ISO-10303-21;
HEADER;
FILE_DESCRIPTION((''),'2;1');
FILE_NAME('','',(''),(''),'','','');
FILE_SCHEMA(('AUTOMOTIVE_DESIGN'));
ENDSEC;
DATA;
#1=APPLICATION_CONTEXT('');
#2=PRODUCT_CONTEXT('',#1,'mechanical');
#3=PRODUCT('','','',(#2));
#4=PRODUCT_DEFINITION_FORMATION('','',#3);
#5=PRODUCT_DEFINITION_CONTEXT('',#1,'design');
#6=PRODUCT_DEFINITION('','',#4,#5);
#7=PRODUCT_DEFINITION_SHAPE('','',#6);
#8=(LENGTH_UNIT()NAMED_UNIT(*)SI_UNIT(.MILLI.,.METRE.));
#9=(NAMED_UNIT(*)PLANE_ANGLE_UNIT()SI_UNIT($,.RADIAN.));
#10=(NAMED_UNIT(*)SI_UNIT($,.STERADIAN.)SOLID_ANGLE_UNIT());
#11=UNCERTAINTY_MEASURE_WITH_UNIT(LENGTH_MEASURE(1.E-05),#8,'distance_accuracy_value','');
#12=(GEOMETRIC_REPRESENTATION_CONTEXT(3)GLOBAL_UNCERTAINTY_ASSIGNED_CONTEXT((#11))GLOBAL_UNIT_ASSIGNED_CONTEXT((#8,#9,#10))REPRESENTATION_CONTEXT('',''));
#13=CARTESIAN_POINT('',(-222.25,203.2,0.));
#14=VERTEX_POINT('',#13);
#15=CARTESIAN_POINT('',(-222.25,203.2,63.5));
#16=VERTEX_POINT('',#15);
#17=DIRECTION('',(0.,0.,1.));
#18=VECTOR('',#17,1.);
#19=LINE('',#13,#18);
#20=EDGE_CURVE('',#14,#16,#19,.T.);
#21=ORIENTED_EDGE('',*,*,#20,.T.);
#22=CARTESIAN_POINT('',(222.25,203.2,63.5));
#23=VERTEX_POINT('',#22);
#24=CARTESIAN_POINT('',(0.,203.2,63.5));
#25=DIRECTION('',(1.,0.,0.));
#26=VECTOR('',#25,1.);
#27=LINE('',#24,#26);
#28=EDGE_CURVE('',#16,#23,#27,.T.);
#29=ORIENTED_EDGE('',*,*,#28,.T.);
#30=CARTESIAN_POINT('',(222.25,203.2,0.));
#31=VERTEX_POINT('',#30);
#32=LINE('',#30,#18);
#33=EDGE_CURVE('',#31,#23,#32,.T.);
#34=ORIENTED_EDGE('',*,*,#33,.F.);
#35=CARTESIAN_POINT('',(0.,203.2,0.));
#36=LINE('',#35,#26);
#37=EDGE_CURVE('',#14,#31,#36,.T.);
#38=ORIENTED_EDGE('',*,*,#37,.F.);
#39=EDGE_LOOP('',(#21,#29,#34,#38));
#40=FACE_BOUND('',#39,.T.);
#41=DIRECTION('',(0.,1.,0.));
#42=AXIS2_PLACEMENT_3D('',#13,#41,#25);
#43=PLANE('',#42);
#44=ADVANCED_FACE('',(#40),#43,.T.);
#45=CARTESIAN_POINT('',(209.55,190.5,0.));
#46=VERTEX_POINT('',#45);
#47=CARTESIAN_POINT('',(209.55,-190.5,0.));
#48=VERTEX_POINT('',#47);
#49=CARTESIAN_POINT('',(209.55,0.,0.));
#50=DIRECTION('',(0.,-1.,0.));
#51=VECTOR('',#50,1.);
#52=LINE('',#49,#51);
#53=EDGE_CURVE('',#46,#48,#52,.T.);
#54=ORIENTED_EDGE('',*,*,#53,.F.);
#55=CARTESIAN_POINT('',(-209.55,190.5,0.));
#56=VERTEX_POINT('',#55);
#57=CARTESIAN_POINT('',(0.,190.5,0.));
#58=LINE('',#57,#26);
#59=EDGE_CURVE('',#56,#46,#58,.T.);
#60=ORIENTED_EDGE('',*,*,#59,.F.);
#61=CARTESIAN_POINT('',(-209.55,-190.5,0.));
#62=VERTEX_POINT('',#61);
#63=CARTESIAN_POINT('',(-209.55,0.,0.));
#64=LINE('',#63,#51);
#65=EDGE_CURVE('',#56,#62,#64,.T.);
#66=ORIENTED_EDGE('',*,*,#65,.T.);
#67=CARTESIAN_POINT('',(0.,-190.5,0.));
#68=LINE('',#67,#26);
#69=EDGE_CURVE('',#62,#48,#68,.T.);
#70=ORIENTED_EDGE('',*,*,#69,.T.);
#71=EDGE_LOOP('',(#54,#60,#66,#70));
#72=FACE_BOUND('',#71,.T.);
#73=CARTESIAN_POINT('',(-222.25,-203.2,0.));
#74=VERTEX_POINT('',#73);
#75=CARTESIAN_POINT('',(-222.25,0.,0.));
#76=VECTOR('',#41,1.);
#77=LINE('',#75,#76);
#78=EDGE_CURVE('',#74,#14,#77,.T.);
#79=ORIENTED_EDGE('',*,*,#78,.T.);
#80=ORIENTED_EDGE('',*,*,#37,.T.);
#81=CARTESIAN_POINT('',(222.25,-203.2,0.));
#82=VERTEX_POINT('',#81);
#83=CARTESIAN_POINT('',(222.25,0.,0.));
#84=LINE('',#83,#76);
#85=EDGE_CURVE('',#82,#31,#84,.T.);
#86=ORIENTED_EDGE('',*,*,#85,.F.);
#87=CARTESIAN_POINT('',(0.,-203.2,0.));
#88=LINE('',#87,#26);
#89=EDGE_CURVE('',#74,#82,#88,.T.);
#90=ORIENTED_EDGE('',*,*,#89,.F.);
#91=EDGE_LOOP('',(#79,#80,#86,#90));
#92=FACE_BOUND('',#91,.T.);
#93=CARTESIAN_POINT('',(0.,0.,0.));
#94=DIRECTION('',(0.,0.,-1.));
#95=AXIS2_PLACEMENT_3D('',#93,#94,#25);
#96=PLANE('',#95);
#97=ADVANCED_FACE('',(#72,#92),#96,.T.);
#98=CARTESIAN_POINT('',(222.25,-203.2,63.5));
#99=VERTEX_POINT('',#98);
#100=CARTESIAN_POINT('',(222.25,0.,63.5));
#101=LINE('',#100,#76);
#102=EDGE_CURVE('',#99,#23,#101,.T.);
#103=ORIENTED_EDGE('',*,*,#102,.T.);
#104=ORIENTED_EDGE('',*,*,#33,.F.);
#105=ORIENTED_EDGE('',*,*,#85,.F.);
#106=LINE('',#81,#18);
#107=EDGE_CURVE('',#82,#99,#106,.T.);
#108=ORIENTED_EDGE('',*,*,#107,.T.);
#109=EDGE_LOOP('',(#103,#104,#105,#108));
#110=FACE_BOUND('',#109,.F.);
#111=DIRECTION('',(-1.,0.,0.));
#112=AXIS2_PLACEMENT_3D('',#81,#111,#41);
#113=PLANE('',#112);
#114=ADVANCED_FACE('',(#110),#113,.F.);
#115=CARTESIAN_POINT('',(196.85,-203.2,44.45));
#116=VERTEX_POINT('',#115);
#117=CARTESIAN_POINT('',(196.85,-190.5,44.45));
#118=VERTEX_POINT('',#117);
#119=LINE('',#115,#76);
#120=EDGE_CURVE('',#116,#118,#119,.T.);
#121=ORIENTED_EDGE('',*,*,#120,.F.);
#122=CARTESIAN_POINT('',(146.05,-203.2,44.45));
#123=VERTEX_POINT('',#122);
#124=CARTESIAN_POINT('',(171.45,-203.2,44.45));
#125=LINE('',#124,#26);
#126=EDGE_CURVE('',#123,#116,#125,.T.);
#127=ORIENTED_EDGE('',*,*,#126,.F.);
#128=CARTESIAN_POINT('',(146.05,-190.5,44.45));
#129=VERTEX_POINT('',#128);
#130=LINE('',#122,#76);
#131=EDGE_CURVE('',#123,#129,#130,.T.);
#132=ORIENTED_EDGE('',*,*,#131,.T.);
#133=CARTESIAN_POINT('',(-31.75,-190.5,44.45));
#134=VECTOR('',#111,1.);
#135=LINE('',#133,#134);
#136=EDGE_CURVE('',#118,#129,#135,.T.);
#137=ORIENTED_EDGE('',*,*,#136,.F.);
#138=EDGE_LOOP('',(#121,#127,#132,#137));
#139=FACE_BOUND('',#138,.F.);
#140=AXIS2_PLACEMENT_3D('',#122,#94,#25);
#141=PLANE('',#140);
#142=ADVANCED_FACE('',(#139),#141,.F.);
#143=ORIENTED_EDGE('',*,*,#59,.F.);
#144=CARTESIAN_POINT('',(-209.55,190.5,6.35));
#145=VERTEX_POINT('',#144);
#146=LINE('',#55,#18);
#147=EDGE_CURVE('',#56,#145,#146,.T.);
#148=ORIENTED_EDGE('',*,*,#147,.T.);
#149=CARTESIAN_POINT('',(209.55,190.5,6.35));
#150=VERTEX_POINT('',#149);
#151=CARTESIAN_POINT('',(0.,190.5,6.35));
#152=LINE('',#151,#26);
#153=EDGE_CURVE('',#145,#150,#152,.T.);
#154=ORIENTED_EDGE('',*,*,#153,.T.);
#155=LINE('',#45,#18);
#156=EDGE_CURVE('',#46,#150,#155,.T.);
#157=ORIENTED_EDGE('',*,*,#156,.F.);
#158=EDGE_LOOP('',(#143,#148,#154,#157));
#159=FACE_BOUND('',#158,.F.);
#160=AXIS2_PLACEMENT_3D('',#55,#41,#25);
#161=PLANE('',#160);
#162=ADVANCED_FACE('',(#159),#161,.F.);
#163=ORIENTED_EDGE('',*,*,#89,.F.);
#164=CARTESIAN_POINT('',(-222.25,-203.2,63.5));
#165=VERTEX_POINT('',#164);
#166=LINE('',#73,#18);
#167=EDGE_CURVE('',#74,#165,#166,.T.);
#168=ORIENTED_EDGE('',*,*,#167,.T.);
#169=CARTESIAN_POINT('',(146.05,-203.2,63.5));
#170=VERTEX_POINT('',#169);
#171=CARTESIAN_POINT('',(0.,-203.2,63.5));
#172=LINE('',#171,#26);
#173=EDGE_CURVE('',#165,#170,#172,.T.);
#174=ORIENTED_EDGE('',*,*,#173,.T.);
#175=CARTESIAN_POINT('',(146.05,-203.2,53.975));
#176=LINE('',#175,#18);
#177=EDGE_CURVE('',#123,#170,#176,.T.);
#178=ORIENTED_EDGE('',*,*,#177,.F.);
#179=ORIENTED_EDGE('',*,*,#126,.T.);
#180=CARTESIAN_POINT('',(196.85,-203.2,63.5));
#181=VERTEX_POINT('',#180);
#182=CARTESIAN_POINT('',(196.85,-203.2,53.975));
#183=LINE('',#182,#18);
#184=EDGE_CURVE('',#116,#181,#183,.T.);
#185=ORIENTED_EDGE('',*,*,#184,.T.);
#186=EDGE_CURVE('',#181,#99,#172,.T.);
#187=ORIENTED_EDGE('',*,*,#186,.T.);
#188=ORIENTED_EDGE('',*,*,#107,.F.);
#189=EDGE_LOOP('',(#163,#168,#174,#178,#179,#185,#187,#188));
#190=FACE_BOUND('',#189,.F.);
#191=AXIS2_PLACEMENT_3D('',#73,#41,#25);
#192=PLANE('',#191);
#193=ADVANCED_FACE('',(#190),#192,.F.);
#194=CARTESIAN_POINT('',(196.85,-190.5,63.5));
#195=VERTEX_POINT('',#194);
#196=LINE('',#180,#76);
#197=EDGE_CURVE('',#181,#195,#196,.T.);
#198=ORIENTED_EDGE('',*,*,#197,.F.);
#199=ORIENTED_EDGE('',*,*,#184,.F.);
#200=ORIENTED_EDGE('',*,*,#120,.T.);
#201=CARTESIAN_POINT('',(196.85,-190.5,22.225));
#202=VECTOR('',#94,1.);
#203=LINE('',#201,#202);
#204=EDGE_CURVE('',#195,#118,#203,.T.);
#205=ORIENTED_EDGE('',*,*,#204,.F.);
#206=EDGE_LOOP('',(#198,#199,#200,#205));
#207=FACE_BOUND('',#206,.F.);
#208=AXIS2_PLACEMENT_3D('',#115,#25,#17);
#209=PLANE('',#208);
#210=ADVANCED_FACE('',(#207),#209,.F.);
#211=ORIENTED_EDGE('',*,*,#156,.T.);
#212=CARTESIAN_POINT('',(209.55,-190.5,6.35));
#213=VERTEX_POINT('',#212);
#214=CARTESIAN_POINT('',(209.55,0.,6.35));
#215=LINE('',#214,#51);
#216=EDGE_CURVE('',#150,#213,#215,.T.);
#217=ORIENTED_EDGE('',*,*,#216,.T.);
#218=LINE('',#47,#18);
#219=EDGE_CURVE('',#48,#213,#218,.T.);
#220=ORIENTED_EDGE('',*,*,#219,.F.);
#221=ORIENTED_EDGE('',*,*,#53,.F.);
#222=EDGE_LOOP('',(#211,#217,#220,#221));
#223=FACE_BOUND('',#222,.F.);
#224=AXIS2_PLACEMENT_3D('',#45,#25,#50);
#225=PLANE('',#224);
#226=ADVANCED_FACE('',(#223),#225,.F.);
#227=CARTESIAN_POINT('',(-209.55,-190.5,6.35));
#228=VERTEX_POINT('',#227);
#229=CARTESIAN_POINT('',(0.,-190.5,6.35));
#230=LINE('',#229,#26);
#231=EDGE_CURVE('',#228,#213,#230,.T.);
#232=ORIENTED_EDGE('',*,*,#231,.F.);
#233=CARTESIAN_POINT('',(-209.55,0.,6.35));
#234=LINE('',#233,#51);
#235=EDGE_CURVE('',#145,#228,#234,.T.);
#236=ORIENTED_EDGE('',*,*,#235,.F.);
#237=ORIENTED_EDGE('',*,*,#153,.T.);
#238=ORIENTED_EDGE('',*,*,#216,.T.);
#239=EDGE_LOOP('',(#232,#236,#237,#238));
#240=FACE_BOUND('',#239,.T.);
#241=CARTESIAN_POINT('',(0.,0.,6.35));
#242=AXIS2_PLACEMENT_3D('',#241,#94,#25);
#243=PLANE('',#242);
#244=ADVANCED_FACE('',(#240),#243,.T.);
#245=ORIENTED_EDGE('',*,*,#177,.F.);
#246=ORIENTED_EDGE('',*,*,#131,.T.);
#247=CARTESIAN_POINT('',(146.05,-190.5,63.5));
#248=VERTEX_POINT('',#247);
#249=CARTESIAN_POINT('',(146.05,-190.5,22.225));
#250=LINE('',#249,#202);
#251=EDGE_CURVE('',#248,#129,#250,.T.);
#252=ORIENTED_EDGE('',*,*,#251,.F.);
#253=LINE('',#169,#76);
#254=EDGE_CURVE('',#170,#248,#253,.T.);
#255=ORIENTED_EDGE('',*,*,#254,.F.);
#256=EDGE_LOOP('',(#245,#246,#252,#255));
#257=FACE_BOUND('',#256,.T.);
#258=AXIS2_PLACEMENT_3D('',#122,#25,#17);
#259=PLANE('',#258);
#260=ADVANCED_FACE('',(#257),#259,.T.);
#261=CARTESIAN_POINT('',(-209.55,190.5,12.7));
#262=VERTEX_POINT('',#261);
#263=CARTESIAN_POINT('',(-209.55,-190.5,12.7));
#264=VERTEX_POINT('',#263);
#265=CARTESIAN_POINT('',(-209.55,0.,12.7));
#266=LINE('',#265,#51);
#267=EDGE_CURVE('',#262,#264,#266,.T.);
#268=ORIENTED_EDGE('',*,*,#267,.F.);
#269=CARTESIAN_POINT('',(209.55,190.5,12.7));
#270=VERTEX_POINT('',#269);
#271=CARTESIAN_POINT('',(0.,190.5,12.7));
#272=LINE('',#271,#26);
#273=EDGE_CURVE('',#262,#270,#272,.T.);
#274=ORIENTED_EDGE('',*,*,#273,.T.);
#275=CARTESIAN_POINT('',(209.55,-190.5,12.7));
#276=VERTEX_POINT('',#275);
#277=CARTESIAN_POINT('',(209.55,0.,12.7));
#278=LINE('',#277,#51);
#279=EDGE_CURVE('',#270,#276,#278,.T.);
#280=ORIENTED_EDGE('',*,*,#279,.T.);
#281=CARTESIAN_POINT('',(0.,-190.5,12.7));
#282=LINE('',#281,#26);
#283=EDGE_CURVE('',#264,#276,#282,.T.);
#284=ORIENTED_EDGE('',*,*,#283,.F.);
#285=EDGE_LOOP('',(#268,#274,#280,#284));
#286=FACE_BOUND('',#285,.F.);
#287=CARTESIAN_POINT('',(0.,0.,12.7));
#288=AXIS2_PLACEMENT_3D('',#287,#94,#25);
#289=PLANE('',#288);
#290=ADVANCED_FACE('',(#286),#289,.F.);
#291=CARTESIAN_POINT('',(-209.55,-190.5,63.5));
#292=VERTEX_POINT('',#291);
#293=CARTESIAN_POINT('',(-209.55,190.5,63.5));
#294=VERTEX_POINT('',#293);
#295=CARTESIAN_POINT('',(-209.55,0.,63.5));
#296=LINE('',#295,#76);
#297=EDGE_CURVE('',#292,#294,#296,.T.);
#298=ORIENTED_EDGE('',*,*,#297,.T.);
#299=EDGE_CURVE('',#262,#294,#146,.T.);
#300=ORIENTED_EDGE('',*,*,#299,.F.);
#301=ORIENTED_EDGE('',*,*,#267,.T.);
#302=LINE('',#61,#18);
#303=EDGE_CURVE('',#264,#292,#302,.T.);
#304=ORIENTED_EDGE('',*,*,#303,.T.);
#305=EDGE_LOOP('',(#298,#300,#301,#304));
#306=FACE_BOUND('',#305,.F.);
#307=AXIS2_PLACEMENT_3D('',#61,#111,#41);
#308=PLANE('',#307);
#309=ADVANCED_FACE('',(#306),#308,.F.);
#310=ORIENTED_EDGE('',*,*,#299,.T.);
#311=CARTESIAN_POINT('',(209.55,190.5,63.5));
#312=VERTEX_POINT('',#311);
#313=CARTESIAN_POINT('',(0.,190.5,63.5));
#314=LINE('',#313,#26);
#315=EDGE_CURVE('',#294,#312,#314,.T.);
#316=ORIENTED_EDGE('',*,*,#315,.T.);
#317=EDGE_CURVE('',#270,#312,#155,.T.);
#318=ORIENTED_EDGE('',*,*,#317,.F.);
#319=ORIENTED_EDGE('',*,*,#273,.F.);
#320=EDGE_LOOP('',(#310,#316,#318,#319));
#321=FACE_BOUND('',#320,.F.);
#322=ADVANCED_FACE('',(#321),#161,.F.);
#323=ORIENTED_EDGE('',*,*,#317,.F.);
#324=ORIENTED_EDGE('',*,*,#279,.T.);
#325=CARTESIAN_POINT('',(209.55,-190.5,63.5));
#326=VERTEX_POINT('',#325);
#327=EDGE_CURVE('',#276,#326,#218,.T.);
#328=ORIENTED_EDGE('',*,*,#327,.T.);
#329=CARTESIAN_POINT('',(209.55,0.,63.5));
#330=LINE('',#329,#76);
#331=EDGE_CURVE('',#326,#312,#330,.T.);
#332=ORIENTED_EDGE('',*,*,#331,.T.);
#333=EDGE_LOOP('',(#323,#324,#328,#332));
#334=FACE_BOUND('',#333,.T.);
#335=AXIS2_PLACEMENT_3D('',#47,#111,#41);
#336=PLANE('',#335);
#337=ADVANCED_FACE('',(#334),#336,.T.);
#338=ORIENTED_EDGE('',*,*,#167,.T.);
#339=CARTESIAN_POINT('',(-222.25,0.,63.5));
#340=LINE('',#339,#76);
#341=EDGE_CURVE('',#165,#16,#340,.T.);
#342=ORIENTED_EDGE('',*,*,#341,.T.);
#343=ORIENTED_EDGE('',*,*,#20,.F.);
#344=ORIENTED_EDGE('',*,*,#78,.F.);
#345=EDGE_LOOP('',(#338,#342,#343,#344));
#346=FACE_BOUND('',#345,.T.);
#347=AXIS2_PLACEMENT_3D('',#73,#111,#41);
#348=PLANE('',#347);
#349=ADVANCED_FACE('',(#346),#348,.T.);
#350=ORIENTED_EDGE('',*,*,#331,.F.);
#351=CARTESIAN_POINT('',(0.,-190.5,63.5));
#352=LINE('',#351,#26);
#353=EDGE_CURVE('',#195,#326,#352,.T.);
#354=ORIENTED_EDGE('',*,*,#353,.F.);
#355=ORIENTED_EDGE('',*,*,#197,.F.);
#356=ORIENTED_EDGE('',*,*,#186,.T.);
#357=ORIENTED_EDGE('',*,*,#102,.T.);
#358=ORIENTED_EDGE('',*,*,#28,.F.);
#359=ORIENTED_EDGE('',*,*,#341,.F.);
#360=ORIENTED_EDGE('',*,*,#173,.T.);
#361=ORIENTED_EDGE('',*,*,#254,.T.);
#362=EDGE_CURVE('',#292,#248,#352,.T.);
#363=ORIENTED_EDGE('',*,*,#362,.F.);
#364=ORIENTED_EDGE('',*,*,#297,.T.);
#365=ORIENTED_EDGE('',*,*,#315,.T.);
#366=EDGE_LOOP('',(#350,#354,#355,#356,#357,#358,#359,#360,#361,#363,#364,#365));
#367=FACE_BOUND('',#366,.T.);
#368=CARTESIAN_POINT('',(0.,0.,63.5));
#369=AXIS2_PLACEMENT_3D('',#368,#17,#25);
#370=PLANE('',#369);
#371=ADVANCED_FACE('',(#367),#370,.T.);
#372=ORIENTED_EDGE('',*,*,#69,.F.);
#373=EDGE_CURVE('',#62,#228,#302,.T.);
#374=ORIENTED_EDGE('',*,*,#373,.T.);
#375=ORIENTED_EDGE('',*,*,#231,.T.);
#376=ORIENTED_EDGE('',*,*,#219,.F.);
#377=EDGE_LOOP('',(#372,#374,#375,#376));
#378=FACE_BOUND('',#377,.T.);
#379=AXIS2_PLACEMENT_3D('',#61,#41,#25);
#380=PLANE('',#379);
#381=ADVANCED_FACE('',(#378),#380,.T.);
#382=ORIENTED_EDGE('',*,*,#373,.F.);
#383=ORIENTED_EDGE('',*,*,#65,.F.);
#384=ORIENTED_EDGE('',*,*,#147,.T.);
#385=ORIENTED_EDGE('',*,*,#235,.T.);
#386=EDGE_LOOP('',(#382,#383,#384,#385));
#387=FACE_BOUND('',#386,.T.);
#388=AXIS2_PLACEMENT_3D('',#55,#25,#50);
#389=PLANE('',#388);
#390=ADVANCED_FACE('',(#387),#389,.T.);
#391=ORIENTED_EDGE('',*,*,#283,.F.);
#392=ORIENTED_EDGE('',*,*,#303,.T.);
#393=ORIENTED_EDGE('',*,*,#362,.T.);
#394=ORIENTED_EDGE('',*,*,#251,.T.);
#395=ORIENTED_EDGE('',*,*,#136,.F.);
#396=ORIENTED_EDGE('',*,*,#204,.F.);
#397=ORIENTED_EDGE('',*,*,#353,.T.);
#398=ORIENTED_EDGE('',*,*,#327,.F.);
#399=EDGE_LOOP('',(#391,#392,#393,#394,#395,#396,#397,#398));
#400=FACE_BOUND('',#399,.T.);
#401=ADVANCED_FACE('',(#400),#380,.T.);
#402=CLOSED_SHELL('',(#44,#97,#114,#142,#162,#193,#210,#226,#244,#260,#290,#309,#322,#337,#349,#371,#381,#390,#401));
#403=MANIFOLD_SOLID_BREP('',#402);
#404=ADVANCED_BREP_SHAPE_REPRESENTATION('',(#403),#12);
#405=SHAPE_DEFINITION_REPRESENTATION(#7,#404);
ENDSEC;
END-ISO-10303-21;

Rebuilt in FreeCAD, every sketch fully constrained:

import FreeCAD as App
import Part
import Sketcher
Q = App.Units.Quantity

doc = App.newDocument("Part")
body = doc.addObject("PartDesign::Body", "Body")

# Sketch on XY plane
sketch1 = body.newObject("Sketcher::SketchObject", "Sketch")
sketch1.AttachmentSupport = (doc.getObject("XY_Plane"), [""])
sketch1.MapMode = "FlatFace"
sketch1.addGeometry([
    Part.LineSegment(App.Vector(-222, 203, 0), App.Vector(-222, -203, 0)),  # 0
    Part.LineSegment(App.Vector(-222, -203, 0), App.Vector(222, -203, 0)),  # 1
    Part.LineSegment(App.Vector(222, -203, 0), App.Vector(222, 203, 0)),  # 2
    Part.LineSegment(App.Vector(222, 203, 0), App.Vector(-222, 203, 0)),  # 3
    Part.LineSegment(App.Vector(210, -190, 0), App.Vector(-210, -190, 0)),  # 4
    Part.LineSegment(App.Vector(-210, -190, 0), App.Vector(-210, 190, 0)),  # 5
    Part.LineSegment(App.Vector(-210, 190, 0), App.Vector(210, 190, 0)),  # 6
    Part.LineSegment(App.Vector(210, 190, 0), App.Vector(210, -190, 0)),  # 7
], False)
sketch1.addConstraint([
    Sketcher.Constraint("Coincident", 0, 2, 1, 1),
    Sketcher.Constraint("Coincident", 1, 2, 2, 1),
    Sketcher.Constraint("Coincident", 2, 2, 3, 1),
    Sketcher.Constraint("Coincident", 3, 2, 0, 1),
    Sketcher.Constraint("Coincident", 4, 2, 5, 1),
    Sketcher.Constraint("Coincident", 5, 2, 6, 1),
    Sketcher.Constraint("Coincident", 6, 2, 7, 1),
    Sketcher.Constraint("Coincident", 7, 2, 4, 1),
    Sketcher.Constraint("Vertical", 0),
    Sketcher.Constraint("Horizontal", 1),
    Sketcher.Constraint("Vertical", 2),
    Sketcher.Constraint("Horizontal", 3),
    Sketcher.Constraint("Horizontal", 4),
    Sketcher.Constraint("Vertical", 5),
    Sketcher.Constraint("Horizontal", 6),
    Sketcher.Constraint("Vertical", 7),
    Sketcher.Constraint("Symmetric", 0, 2, 2, 2, -1, 1),
    Sketcher.Constraint("Symmetric", 4, 2, 6, 2, -1, 1),
    Sketcher.Constraint("DistanceY", 0, 2, 0, 1, Q("16 in")),
    Sketcher.Constraint("DistanceY", 5, 1, 5, 2, Q("15 in")),
    Sketcher.Constraint("DistanceX", 1, 1, 1, 2, Q("17.5 in")),
    Sketcher.Constraint("DistanceX", 4, 2, 4, 1, Q("16.5 in")),
])
pad1 = body.newObject("PartDesign::Pad", "Pad")
pad1.Profile = sketch1
pad1.Length = Q("2.5 in")

# Sketch on XY plane
sketch2 = body.newObject("Sketcher::SketchObject", "Sketch001")
sketch2.AttachmentSupport = (doc.getObject("XY_Plane"), [""])
sketch2.MapMode = "FlatFace"
sketch2.addGeometry([
    Part.LineSegment(App.Vector(-210, -190, 0), App.Vector(-210, 190, 0)),
    Part.LineSegment(App.Vector(-210, 190, 0), App.Vector(210, 190, 0)),
    Part.LineSegment(App.Vector(210, 190, 0), App.Vector(210, -190, 0)),
    Part.LineSegment(App.Vector(210, -190, 0), App.Vector(-210, -190, 0)),
], False)
sketch2.addConstraint([
    Sketcher.Constraint("Coincident", 0, 2, 1, 1),
    Sketcher.Constraint("Coincident", 1, 2, 2, 1),
    Sketcher.Constraint("Coincident", 2, 2, 3, 1),
    Sketcher.Constraint("Coincident", 3, 2, 0, 1),
    Sketcher.Constraint("Vertical", 0),
    Sketcher.Constraint("Horizontal", 1),
    Sketcher.Constraint("Vertical", 2),
    Sketcher.Constraint("Horizontal", 3),
    Sketcher.Constraint("Symmetric", 0, 2, 2, 2, -1, 1),
    Sketcher.Constraint("DistanceY", 0, 1, 0, 2, Q("15 in")),
    Sketcher.Constraint("DistanceX", 1, 1, 1, 2, Q("16.5 in")),
])
pad2 = body.newObject("PartDesign::Pad", "Pad001")
pad2.Profile = sketch2
pad2.Length = Q("0.5 in")

# Sketch on XY plane
sketch3 = body.newObject("Sketcher::SketchObject", "Sketch002")
sketch3.AttachmentSupport = (doc.getObject("XY_Plane"), [""])
sketch3.MapMode = "FlatFace"
sketch3.addGeometry([
    Part.LineSegment(App.Vector(-210, -190, 0), App.Vector(-210, 190, 0)),
    Part.LineSegment(App.Vector(-210, 190, 0), App.Vector(210, 190, 0)),
    Part.LineSegment(App.Vector(210, 190, 0), App.Vector(210, -190, 0)),
    Part.LineSegment(App.Vector(210, -190, 0), App.Vector(-210, -190, 0)),
], False)
sketch3.addConstraint([
    Sketcher.Constraint("Coincident", 0, 2, 1, 1),
    Sketcher.Constraint("Coincident", 1, 2, 2, 1),
    Sketcher.Constraint("Coincident", 2, 2, 3, 1),
    Sketcher.Constraint("Coincident", 3, 2, 0, 1),
    Sketcher.Constraint("Vertical", 0),
    Sketcher.Constraint("Horizontal", 1),
    Sketcher.Constraint("Vertical", 2),
    Sketcher.Constraint("Horizontal", 3),
    Sketcher.Constraint("Symmetric", 0, 2, 2, 2, -1, 1),
    Sketcher.Constraint("DistanceY", 0, 1, 0, 2, Q("15 in")),
    Sketcher.Constraint("DistanceX", 1, 1, 1, 2, Q("16.5 in")),
])
pocket1 = body.newObject("PartDesign::Pocket", "Pocket")
pocket1.Profile = sketch3
pocket1.Length = Q("0.25 in")
pocket1.Reversed = True

# Sketch on XZ plane
sketch4 = body.newObject("Sketcher::SketchObject", "Sketch003")
sketch4.AttachmentSupport = (doc.getObject("XZ_Plane"), [""])
sketch4.MapMode = "FlatFace"
sketch4.AttachmentOffset = App.Placement(App.Vector(0, 0, 8 * 25.4), App.Rotation())
sketch4.addGeometry([
    Part.LineSegment(App.Vector(146, 64, 0), App.Vector(146, 44, 0)),
    Part.LineSegment(App.Vector(146, 44, 0), App.Vector(197, 44, 0)),
    Part.LineSegment(App.Vector(197, 44, 0), App.Vector(197, 64, 0)),
    Part.LineSegment(App.Vector(197, 64, 0), App.Vector(146, 64, 0)),
], False)
sketch4.addConstraint([
    Sketcher.Constraint("Coincident", 0, 2, 1, 1),
    Sketcher.Constraint("Coincident", 1, 2, 2, 1),
    Sketcher.Constraint("Coincident", 2, 2, 3, 1),
    Sketcher.Constraint("Coincident", 3, 2, 0, 1),
    Sketcher.Constraint("Vertical", 0),
    Sketcher.Constraint("Horizontal", 1),
    Sketcher.Constraint("Vertical", 2),
    Sketcher.Constraint("Horizontal", 3),
    Sketcher.Constraint("DistanceX", 1, 1, 1, 2, Q("2 in")),
    Sketcher.Constraint("DistanceY", 0, 2, 0, 1, Q("0.75 in")),
    Sketcher.Constraint("DistanceY", -1, 1, 2, 2, Q("2.5 in")),
    Sketcher.Constraint("DistanceX", -1, 1, 0, 2, Q("5.75 in")),
])
pocket2 = body.newObject("PartDesign::Pocket", "Pocket001")
pocket2.Profile = sketch4
pocket2.Length = Q("1 in")

doc.recompute()
